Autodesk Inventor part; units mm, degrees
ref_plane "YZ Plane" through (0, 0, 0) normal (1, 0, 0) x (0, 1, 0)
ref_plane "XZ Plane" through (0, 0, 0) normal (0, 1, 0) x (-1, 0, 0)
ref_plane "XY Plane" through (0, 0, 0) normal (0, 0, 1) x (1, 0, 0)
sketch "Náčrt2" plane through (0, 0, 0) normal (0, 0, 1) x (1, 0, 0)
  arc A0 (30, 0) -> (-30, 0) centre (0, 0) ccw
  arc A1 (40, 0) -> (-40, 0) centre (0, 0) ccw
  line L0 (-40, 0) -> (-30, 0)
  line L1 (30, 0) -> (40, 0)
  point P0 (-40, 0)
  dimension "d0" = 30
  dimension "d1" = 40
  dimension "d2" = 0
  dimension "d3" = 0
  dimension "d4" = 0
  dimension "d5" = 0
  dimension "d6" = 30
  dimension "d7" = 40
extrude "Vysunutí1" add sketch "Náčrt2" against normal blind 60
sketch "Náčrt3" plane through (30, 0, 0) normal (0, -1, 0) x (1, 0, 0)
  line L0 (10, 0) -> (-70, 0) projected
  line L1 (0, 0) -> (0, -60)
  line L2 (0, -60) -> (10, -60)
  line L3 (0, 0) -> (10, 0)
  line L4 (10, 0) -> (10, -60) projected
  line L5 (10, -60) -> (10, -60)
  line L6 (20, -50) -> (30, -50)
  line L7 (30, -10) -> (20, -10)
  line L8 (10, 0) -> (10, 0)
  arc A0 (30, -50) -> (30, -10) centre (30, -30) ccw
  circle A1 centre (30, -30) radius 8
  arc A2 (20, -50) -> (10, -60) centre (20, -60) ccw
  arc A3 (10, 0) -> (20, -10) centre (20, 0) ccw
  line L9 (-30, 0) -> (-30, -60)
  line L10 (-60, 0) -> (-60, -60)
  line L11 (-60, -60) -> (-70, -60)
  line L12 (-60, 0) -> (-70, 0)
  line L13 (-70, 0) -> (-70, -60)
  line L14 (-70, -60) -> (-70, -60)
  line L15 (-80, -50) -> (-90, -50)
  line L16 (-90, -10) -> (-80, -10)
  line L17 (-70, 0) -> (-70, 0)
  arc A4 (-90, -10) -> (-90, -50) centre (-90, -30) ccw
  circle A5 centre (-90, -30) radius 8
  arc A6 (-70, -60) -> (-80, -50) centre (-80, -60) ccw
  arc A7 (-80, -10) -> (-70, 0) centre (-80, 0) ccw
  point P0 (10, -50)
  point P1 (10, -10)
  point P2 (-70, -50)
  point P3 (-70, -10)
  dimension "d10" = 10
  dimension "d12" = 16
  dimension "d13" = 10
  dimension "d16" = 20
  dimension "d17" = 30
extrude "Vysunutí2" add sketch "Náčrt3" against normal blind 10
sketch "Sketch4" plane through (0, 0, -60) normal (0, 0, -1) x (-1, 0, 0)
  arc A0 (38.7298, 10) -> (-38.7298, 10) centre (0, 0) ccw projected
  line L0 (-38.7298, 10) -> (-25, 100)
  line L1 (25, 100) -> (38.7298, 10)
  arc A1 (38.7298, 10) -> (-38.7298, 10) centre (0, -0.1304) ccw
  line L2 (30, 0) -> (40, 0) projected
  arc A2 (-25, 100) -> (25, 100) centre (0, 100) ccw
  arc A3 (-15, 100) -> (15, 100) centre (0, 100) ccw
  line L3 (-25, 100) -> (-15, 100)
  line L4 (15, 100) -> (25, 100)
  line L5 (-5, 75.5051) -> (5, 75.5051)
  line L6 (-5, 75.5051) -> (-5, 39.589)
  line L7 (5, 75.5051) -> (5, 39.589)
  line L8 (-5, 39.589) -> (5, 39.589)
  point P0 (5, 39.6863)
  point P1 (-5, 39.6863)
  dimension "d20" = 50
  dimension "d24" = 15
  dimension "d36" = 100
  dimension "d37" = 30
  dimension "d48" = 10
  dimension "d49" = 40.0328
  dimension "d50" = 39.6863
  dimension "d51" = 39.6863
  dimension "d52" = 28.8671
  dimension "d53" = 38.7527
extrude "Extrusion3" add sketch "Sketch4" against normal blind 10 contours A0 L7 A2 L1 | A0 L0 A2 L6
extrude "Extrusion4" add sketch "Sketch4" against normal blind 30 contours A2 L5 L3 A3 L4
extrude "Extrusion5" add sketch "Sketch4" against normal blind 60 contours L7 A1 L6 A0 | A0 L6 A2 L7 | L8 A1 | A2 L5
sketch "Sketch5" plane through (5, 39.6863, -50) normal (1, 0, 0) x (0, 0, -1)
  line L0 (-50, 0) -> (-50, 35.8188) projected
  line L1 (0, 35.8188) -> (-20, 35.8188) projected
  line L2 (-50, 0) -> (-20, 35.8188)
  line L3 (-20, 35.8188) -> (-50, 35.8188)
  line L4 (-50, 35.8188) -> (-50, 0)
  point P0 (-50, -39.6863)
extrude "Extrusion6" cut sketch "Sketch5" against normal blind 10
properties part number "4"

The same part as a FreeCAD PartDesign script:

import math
import FreeCAD as App
import Part
import Sketcher
Q = App.Units.Quantity

doc = App.newDocument("Part")
body = doc.addObject("PartDesign::Body", "Body")

# Sketch on XY plane
sketch1 = body.newObject("Sketcher::SketchObject", "Sketch")
sketch1.AttachmentSupport = (doc.getObject("XY_Plane"), [""])
sketch1.MapMode = "FlatFace"
sketch1.addGeometry([
    Part.ArcOfCircle(Part.Circle(App.Vector(0, 0, 0), App.Vector(0, 0, 1), 30), math.radians(0), math.radians(180)),
    Part.LineSegment(App.Vector(30, 0, 0), App.Vector(40, 0, 0)),
    Part.ArcOfCircle(Part.Circle(App.Vector(0, 0, 0), App.Vector(0, 0, 1), 40), math.radians(0), math.radians(180)),
    Part.LineSegment(App.Vector(-40, 0, 0), App.Vector(-30, 0, 0)),
], False)
sketch1.addConstraint([
    Sketcher.Constraint("Coincident", 0, 1, 1, 1),
    Sketcher.Constraint("Coincident", 1, 2, 2, 1),
    Sketcher.Constraint("Coincident", 2, 2, 3, 1),
    Sketcher.Constraint("Coincident", 3, 2, 0, 2),
    Sketcher.Constraint("Horizontal", 1),
    Sketcher.Constraint("Horizontal", 3),
    Sketcher.Constraint("Coincident", 0, 3, -1, 1),
    Sketcher.Constraint("Coincident", 2, 3, -1, 1),
    Sketcher.Constraint("PointOnObject", 0, 1, -1),
    Sketcher.Constraint("PointOnObject", 2, 2, -1),
    Sketcher.Constraint("Radius", 0, Q("30 mm")),
    Sketcher.Constraint("Radius", 2, Q("40 mm")),
])
pad1 = body.newObject("PartDesign::Pad", "Pad")
pad1.Profile = sketch1
pad1.Length = 60
pad1.Reversed = True

# Sketch on XZ plane
sketch2 = body.newObject("Sketcher::SketchObject", "Sketch001")
sketch2.AttachmentSupport = (doc.getObject("XZ_Plane"), [""])
sketch2.MapMode = "FlatFace"
sketch2.addGeometry([
    Part.LineSegment(App.Vector(30, -60, 0), App.Vector(40, -60, 0)),  # 0
    Part.ArcOfCircle(Part.Circle(App.Vector(50, -60, 0), App.Vector(0, 0, 1), 10), math.radians(90), math.radians(180)),  # 1
    Part.LineSegment(App.Vector(50, -50, 0), App.Vector(60, -50, 0)),  # 2
    Part.ArcOfCircle(Part.Circle(App.Vector(60, -30, 0), App.Vector(0, 0, 1), 20), math.radians(-90), math.radians(90)),  # 3
    Part.LineSegment(App.Vector(60, -10, 0), App.Vector(50, -10, 0)),  # 4
    Part.ArcOfCircle(Part.Circle(App.Vector(50, 0, 0), App.Vector(0, 0, 1), 10), math.radians(180), math.radians(270)),  # 5
    Part.LineSegment(App.Vector(40, 0, 0), App.Vector(30, 0, 0)),  # 6
    Part.LineSegment(App.Vector(30, 0, 0), App.Vector(30, -60, 0)),  # 7
    Part.Circle(App.Vector(60, -30, 0), App.Vector(0, 0, 1), 8),  # 8
    Part.LineSegment(App.Vector(-30, -60, 0), App.Vector(-30, 0, 0)),  # 9
    Part.LineSegment(App.Vector(-30, 0, 0), App.Vector(-40, 0, 0)),  # 10
    Part.ArcOfCircle(Part.Circle(App.Vector(-50, 0, 0), App.Vector(0, 0, 1), 10), math.radians(-90), math.radians(0)),  # 11
    Part.LineSegment(App.Vector(-50, -10, 0), App.Vector(-60, -10, 0)),  # 12
    Part.ArcOfCircle(Part.Circle(App.Vector(-60, -30, 0), App.Vector(0, 0, 1), 20), math.radians(90), math.radians(270)),  # 13
    Part.LineSegment(App.Vector(-60, -50, 0), App.Vector(-50, -50, 0)),  # 14
    Part.ArcOfCircle(Part.Circle(App.Vector(-50, -60, 0), App.Vector(0, 0, 1), 10), math.radians(0), math.radians(90)),  # 15
    Part.LineSegment(App.Vector(-40, -60, 0), App.Vector(-30, -60, 0)),  # 16
    Part.Circle(App.Vector(-60, -30, 0), App.Vector(0, 0, 1), 8),  # 17
], False)
sketch2.addConstraint([
    Sketcher.Constraint("Coincident", 0, 2, 1, 2),
    Sketcher.Constraint("Tangent", 1, 1, 2, 1),
    Sketcher.Constraint("Tangent", 2, 2, 3, 1),
    Sketcher.Constraint("Tangent", 3, 2, 4, 1),
    Sketcher.Constraint("Tangent", 4, 2, 5, 2),
    Sketcher.Constraint("Coincident", 5, 1, 6, 1),
    Sketcher.Constraint("Coincident", 6, 2, 7, 1),
    Sketcher.Constraint("Coincident", 7, 2, 0, 1),
    Sketcher.Constraint("Coincident", 9, 2, 10, 1),
    Sketcher.Constraint("Coincident", 10, 2, 11, 2),
    Sketcher.Constraint("Tangent", 11, 1, 12, 1),
    Sketcher.Constraint("Tangent", 12, 2, 13, 1),
    Sketcher.Constraint("Tangent", 13, 2, 14, 1),
    Sketcher.Constraint("Tangent", 14, 2, 15, 2),
    Sketcher.Constraint("Coincident", 15, 1, 16, 1),
    Sketcher.Constraint("Coincident", 16, 2, 9, 1),
    Sketcher.Constraint("Horizontal", 0),
    Sketcher.Constraint("Horizontal", 2),
    Sketcher.Constraint("Horizontal", 4),
    Sketcher.Constraint("Horizontal", 6),
    Sketcher.Constraint("Vertical", 7),
    Sketcher.Constraint("Vertical", 9),
    Sketcher.Constraint("Horizontal", 10),
    Sketcher.Constraint("Horizontal", 12),
    Sketcher.Constraint("Horizontal", 14),
    Sketcher.Constraint("Horizontal", 16),
    Sketcher.Constraint("Coincident", 8, 3, 3, 3),
    Sketcher.Constraint("Coincident", 17, 3, 13, 3),
    Sketcher.Constraint("Equal", 1, 5),
    Sketcher.Constraint("Equal", 5, 11),
    Sketcher.Constraint("Equal", 3, 13),
    Sketcher.Constraint("Equal", 11, 15),
    Sketcher.Constraint("Equal", 8, 17),
    Sketcher.Constraint("Symmetric", 5, 3, 11, 3, -1, 1),
    Sketcher.Constraint("Symmetric", 6, 2, 9, 2, -1, 1),
    Sketcher.Constraint("Symmetric", 3, 3, 13, 3, -2),
    Sketcher.Constraint("Symmetric", 0, 2, 15, 1, -2),
    Sketcher.Constraint("PointOnObject", 5, 1, -1),
    Sketcher.Constraint("Horizontal", 15, 3, 0, 2),
    Sketcher.Constraint("Vertical", 1, 3, 5, 3),
    Sketcher.Constraint("Equal", 0, 2),
    Sketcher.Constraint("Diameter", 8, Q("16 mm")),
    Sketcher.Constraint("Radius", 1, Q("10 mm")),
    Sketcher.Constraint("Radius", 3, Q("20 mm")),
    Sketcher.Constraint("DistanceX", 0, 1, 0, 2, Q("10 mm")),
    Sketcher.Constraint("DistanceX", -1, 1, 6, 2, Q("30 mm")),
])
pad2 = body.newObject("PartDesign::Pad", "Pad001")
pad2.Profile = sketch2
pad2.Length = 10
pad2.Reversed = True

# Sketch on XY plane
sketch3 = body.newObject("Sketcher::SketchObject", "Sketch002")
sketch3.AttachmentSupport = (doc.getObject("XY_Plane"), [""])
sketch3.MapMode = "FlatFace"
sketch3.AttachmentOffset = App.Placement(App.Vector(0, 0, -60), App.Rotation())
sketch3.addGeometry([
    Part.ArcOfCircle(Part.Circle(App.Vector(0, 0, 0), App.Vector(0, 0, 1), 40), math.radians(97), math.radians(166)),  # 0
    Part.LineSegment(App.Vector(-39, 10, 0), App.Vector(-25, 100, 0)),  # 1
    Part.ArcOfCircle(Part.Circle(App.Vector(0, 100, 0), App.Vector(0, 0, 1), 25), math.radians(180), math.radians(258)),  # 2
    Part.LineSegment(App.Vector(-5, 76, 0), App.Vector(-5, 40, 0)),  # 3
    Part.ArcOfCircle(Part.Circle(App.Vector(0, 0, 0), App.Vector(0, 0, 1), 40), math.radians(14), math.radians(83)),  # 4
    Part.LineSegment(App.Vector(5, 40, 0), App.Vector(5, 76, 0)),  # 5
    Part.ArcOfCircle(Part.Circle(App.Vector(0, 100, 0), App.Vector(0, 0, 1), 25), math.radians(-78), math.radians(0)),  # 6
    Part.LineSegment(App.Vector(25, 100, 0), App.Vector(39, 10, 0)),  # 7
], False)
sketch3.addConstraint([
    Sketcher.Constraint("Coincident", 0, 2, 1, 1),
    Sketcher.Constraint("Coincident", 1, 2, 2, 1),
    Sketcher.Constraint("Coincident", 2, 2, 3, 1),
    Sketcher.Constraint("Coincident", 3, 2, 0, 1),
    Sketcher.Constraint("Coincident", 4, 2, 5, 1),
    Sketcher.Constraint("Coincident", 5, 2, 6, 1),
    Sketcher.Constraint("Coincident", 6, 2, 7, 1),
    Sketcher.Constraint("Coincident", 7, 2, 4, 1),
    Sketcher.Constraint("Vertical", 3),
    Sketcher.Constraint("Vertical", 5),
    Sketcher.Constraint("Coincident", 0, 3, -1, 1),
    Sketcher.Constraint("Coincident", 4, 3, -1, 1),
    Sketcher.Constraint("Coincident", 6, 3, 2, 3),
    Sketcher.Constraint("Equal", 0, 4),
    Sketcher.Constraint("Equal", 2, 6),
    Sketcher.Constraint("Symmetric", 2, 2, 5, 2, -2),
    Sketcher.Constraint("Horizontal", 6, 3, 1, 2),
    Sketcher.Constraint("Horizontal", 1, 2, 6, 2),
    Sketcher.Constraint("Horizontal", 0, 2, 7, 2),
    Sketcher.Constraint("Radius", 2, Q("25 mm")),
    Sketcher.Constraint("DistanceY", -1, 1, 2, 3, Q("100 mm")),
    Sketcher.Constraint("DistanceY", -1, 1, 0, 2, Q("10 mm")),
    Sketcher.Constraint("Radius", 0, Q("40 mm")),
    Sketcher.Constraint("DistanceX", 3, 2, 4, 2, Q("10 mm")),
])
pad3 = body.newObject("PartDesign::Pad", "Pad002")
pad3.Profile = sketch3
pad3.Length = 10

# Sketch on XY plane
sketch4 = body.newObject("Sketcher::SketchObject", "Sketch003")
sketch4.AttachmentSupport = (doc.getObject("XY_Plane"), [""])
sketch4.MapMode = "FlatFace"
sketch4.AttachmentOffset = App.Placement(App.Vector(0, 0, -60), App.Rotation())
sketch4.addGeometry([
    Part.ArcOfCircle(Part.Circle(App.Vector(0, 100, 0), App.Vector(0, 0, 1), 25), math.radians(180), math.radians(258)),  # 0
    Part.LineSegment(App.Vector(-25, 100, 0), App.Vector(-15, 100, 0)),  # 1
    Part.ArcOfCircle(Part.Circle(App.Vector(0, 100, 0), App.Vector(0, 0, 1), 15), math.radians(180), math.radians(360)),  # 2
    Part.LineSegment(App.Vector(15, 100, 0), App.Vector(25, 100, 0)),  # 3
    Part.ArcOfCircle(Part.Circle(App.Vector(0, 100, 0), App.Vector(0, 0, 1), 25), math.radians(-78), math.radians(0)),  # 4
    Part.LineSegment(App.Vector(5, 76, 0), App.Vector(-5, 76, 0)),  # 5
], False)
sketch4.addConstraint([
    Sketcher.Constraint("Coincident", 0, 1, 1, 1),
    Sketcher.Constraint("Coincident", 1, 2, 2, 1),
    Sketcher.Constraint("Coincident", 2, 2, 3, 1),
    Sketcher.Constraint("Coincident", 3, 2, 4, 2),
    Sketcher.Constraint("Coincident", 4, 1, 5, 1),
    Sketcher.Constraint("Coincident", 5, 2, 0, 2),
    Sketcher.Constraint("Horizontal", 1),
    Sketcher.Constraint("Horizontal", 3),
    Sketcher.Constraint("Horizontal", 5),
    Sketcher.Constraint("Coincident", 2, 3, 0, 3),
    Sketcher.Constraint("Coincident", 4, 3, 0, 3),
    Sketcher.Constraint("Equal", 0, 4),
    Sketcher.Constraint("Symmetric", 1, 2, 2, 2, -2),
    Sketcher.Constraint("Horizontal", 4, 3, 0, 1),
    Sketcher.Constraint("Equal", 3, 5),
    Sketcher.Constraint("Radius", 0, Q("25 mm")),
    Sketcher.Constraint("Radius", 2, Q("15 mm")),
    Sketcher.Constraint("DistanceY", -1, 1, 0, 3, Q("100 mm")),
])
pad4 = body.newObject("PartDesign::Pad", "Pad003")
pad4.Profile = sketch4
pad4.Length = 30

# Sketch on XY plane
sketch5 = body.newObject("Sketcher::SketchObject", "Sketch004")
sketch5.AttachmentSupport = (doc.getObject("XY_Plane"), [""])
sketch5.MapMode = "FlatFace"
sketch5.AttachmentOffset = App.Placement(App.Vector(0, 0, -60), App.Rotation())
sketch5.addGeometry([
    Part.LineSegment(App.Vector(-5, 40, 0), App.Vector(-5, 76, 0)),
    Part.LineSegment(App.Vector(-5, 76, 0), App.Vector(5, 76, 0)),
    Part.LineSegment(App.Vector(5, 76, 0), App.Vector(5, 40, 0)),
    Part.LineSegment(App.Vector(5, 40, 0), App.Vector(-5, 40, 0)),
], False)
sketch5.addConstraint([
    Sketcher.Constraint("Coincident", 0, 2, 1, 1),
    Sketcher.Constraint("Coincident", 1, 2, 2, 1),
    Sketcher.Constraint("Coincident", 2, 2, 3, 1),
    Sketcher.Constraint("Coincident", 3, 2, 0, 1),
    Sketcher.Constraint("Vertical", 0),
    Sketcher.Constraint("Horizontal", 1),
    Sketcher.Constraint("Vertical", 2),
    Sketcher.Constraint("Horizontal", 3),
    Sketcher.Constraint("DistanceX", 1, 1, 1, 2, Q("10 mm")),
    Sketcher.Constraint("DistanceX", 0, 2, -1, 1, Q("5 mm")),
    Sketcher.Constraint("DistanceY", 0, 1, 0, 2, Q("35.916 mm")),
    Sketcher.Constraint("DistanceY", -1, 1, 0, 2, Q("75.505 mm")),
])
pad5 = body.newObject("PartDesign::Pad", "Pad004")
pad5.Profile = sketch5
pad5.Length = 60

# Sketch on YZ plane
sketch6 = body.newObject("Sketcher::SketchObject", "Sketch005")
sketch6.AttachmentSupport = (doc.getObject("YZ_Plane"), [""])
sketch6.MapMode = "FlatFace"
sketch6.AttachmentOffset = App.Placement(App.Vector(0, 0, 5), App.Rotation())
sketch6.addGeometry([
    Part.LineSegment(App.Vector(76, 0, 0), App.Vector(40, 0, 0)),
    Part.LineSegment(App.Vector(40, 0, 0), App.Vector(76, -30, 0)),
    Part.LineSegment(App.Vector(76, -30, 0), App.Vector(76, 0, 0)),
], False)
sketch6.addConstraint([
    Sketcher.Constraint("Coincident", 0, 2, 1, 1),
    Sketcher.Constraint("Coincident", 1, 2, 2, 1),
    Sketcher.Constraint("Coincident", 2, 2, 0, 1),
    Sketcher.Constraint("Horizontal", 0),
    Sketcher.Constraint("Vertical", 2),
    Sketcher.Constraint("PointOnObject", 0, 2, -1),
    Sketcher.Constraint("DistanceY", 2, 1, 2, 2, Q("30 mm")),
    Sketcher.Constraint("DistanceX", 0, 2, 0, 1, Q("35.8188 mm")),
    Sketcher.Constraint("DistanceX", -1, 1, 1, 2, Q("75.505 mm")),
])
pocket1 = body.newObject("PartDesign::Pocket", "Pocket")
pocket1.Profile = sketch6
pocket1.Length = 10

doc.recompute()
